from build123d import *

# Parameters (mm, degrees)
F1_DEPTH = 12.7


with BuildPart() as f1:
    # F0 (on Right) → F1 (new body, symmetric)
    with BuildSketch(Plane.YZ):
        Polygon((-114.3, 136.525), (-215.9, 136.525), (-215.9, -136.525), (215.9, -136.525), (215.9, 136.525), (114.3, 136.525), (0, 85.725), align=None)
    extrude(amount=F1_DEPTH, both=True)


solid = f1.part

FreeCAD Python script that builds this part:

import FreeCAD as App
import Part
import Sketcher

V = App.Vector
Q = App.Units.Quantity


def add_polygon(sketch, points):
    """Adds a closed chain of lines whose ends are joined by coincident constraints."""
    first, n = sketch.GeometryCount, len(points)
    for a, b in zip(points, points[1:] + points[:1]):
        sketch.addGeometry(Part.LineSegment(App.Vector(*a, 0), App.Vector(*b, 0)), False)
    for i in range(n):
        sketch.addConstraint(Sketcher.Constraint("Coincident", first + i, 2, first + (i + 1) % n, 1))

doc = App.newDocument("Part")
body = doc.addObject("PartDesign::Body", "Body")

# Sketch on YZ plane
sketch1 = body.newObject("Sketcher::SketchObject", "Sketch")
sketch1.AttachmentSupport = (doc.getObject("YZ_Plane"), [""])
sketch1.MapMode = "FlatFace"
add_polygon(sketch1, [(-114, 137), (-216, 137), (-216, -137), (216, -137), (216, 137), (114, 137), (0, 86)])  # lines 0-6
sketch1.addConstraint(Sketcher.Constraint("Horizontal", 0))
sketch1.addConstraint(Sketcher.Constraint("Vertical", 1))
sketch1.addConstraint(Sketcher.Constraint("Horizontal", 2))
sketch1.addConstraint(Sketcher.Constraint("Vertical", 3))
sketch1.addConstraint(Sketcher.Constraint("Horizontal", 4))
sketch1.addConstraint(Sketcher.Constraint("Symmetric", 0, 2, 2, 2, -1, 1))
sketch1.addConstraint(Sketcher.Constraint("Symmetric", 4, 2, 6, 2, -2))
sketch1.addConstraint(Sketcher.Constraint("PointOnObject", 5, 2, -2))
sketch1.addConstraint(Sketcher.Constraint("DistanceX", 0, 2, 0, 1, Q("4 in")))
sketch1.addConstraint(Sketcher.Constraint("DistanceX", 2, 1, 2, 2, Q("17 in")))
sketch1.addConstraint(Sketcher.Constraint("DistanceY", 5, 2, 4, 2, Q("2 in")))
sketch1.addConstraint(Sketcher.Constraint("DistanceY", 1, 2, 1, 1, Q("10.75 in")))
pad1 = body.newObject("PartDesign::Pad", "Pad")
pad1.Profile = sketch1
pad1.Length = Q("1 in")
pad1.Midplane = True

doc.recompute()
